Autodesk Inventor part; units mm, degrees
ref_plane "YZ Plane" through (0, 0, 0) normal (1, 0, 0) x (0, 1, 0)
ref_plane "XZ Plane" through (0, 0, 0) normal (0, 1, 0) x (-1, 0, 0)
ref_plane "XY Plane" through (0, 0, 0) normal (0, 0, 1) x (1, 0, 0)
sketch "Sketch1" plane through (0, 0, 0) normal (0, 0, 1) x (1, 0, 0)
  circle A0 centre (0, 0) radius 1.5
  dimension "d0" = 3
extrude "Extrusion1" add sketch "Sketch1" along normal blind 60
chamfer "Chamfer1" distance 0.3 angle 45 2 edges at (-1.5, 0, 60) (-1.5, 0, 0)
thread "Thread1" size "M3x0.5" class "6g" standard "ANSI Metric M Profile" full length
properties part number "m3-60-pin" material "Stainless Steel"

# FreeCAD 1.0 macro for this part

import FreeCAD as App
import Part
import Sketcher

V = App.Vector
Q = App.Units.Quantity


def edges_at(feature, points):
    """Names of the edges that pass closest to the given points."""
    edges = feature.Shape.Edges
    near = lambda p: min(range(len(edges)), key=lambda i: edges[i].distToShape(Part.Vertex(*p))[0])
    return sorted({f"Edge{near(p) + 1}" for p in points})

doc = App.newDocument("Part")
body = doc.addObject("PartDesign::Body", "Body")

sketch1 = body.newObject("Sketcher::SketchObject", "Sketch")
sketch1.AttachmentSupport = (doc.getObject("XY_Plane"), [""])
sketch1.MapMode = "FlatFace"
sketch1.addGeometry(Part.Circle(V(0, 0, 0), V(0, 0, 1), 1.5), False)
sketch1.addConstraint([
    Sketcher.Constraint("Coincident", 0, 3, -1, 1),
    Sketcher.Constraint("Diameter", 0, Q("3 mm")),
])
pad1 = body.newObject("PartDesign::Pad", "Pad")
pad1.Profile = sketch1
pad1.Length = 60
doc.recompute()

chamfer = body.newObject("PartDesign::Chamfer", "Chamfer")
chamfer.Base = (pad1, edges_at(pad1, [(-1.5, 0, 60), (-1.5, 0, 0)]))
chamfer.Size = 0.3

doc.recompute()
